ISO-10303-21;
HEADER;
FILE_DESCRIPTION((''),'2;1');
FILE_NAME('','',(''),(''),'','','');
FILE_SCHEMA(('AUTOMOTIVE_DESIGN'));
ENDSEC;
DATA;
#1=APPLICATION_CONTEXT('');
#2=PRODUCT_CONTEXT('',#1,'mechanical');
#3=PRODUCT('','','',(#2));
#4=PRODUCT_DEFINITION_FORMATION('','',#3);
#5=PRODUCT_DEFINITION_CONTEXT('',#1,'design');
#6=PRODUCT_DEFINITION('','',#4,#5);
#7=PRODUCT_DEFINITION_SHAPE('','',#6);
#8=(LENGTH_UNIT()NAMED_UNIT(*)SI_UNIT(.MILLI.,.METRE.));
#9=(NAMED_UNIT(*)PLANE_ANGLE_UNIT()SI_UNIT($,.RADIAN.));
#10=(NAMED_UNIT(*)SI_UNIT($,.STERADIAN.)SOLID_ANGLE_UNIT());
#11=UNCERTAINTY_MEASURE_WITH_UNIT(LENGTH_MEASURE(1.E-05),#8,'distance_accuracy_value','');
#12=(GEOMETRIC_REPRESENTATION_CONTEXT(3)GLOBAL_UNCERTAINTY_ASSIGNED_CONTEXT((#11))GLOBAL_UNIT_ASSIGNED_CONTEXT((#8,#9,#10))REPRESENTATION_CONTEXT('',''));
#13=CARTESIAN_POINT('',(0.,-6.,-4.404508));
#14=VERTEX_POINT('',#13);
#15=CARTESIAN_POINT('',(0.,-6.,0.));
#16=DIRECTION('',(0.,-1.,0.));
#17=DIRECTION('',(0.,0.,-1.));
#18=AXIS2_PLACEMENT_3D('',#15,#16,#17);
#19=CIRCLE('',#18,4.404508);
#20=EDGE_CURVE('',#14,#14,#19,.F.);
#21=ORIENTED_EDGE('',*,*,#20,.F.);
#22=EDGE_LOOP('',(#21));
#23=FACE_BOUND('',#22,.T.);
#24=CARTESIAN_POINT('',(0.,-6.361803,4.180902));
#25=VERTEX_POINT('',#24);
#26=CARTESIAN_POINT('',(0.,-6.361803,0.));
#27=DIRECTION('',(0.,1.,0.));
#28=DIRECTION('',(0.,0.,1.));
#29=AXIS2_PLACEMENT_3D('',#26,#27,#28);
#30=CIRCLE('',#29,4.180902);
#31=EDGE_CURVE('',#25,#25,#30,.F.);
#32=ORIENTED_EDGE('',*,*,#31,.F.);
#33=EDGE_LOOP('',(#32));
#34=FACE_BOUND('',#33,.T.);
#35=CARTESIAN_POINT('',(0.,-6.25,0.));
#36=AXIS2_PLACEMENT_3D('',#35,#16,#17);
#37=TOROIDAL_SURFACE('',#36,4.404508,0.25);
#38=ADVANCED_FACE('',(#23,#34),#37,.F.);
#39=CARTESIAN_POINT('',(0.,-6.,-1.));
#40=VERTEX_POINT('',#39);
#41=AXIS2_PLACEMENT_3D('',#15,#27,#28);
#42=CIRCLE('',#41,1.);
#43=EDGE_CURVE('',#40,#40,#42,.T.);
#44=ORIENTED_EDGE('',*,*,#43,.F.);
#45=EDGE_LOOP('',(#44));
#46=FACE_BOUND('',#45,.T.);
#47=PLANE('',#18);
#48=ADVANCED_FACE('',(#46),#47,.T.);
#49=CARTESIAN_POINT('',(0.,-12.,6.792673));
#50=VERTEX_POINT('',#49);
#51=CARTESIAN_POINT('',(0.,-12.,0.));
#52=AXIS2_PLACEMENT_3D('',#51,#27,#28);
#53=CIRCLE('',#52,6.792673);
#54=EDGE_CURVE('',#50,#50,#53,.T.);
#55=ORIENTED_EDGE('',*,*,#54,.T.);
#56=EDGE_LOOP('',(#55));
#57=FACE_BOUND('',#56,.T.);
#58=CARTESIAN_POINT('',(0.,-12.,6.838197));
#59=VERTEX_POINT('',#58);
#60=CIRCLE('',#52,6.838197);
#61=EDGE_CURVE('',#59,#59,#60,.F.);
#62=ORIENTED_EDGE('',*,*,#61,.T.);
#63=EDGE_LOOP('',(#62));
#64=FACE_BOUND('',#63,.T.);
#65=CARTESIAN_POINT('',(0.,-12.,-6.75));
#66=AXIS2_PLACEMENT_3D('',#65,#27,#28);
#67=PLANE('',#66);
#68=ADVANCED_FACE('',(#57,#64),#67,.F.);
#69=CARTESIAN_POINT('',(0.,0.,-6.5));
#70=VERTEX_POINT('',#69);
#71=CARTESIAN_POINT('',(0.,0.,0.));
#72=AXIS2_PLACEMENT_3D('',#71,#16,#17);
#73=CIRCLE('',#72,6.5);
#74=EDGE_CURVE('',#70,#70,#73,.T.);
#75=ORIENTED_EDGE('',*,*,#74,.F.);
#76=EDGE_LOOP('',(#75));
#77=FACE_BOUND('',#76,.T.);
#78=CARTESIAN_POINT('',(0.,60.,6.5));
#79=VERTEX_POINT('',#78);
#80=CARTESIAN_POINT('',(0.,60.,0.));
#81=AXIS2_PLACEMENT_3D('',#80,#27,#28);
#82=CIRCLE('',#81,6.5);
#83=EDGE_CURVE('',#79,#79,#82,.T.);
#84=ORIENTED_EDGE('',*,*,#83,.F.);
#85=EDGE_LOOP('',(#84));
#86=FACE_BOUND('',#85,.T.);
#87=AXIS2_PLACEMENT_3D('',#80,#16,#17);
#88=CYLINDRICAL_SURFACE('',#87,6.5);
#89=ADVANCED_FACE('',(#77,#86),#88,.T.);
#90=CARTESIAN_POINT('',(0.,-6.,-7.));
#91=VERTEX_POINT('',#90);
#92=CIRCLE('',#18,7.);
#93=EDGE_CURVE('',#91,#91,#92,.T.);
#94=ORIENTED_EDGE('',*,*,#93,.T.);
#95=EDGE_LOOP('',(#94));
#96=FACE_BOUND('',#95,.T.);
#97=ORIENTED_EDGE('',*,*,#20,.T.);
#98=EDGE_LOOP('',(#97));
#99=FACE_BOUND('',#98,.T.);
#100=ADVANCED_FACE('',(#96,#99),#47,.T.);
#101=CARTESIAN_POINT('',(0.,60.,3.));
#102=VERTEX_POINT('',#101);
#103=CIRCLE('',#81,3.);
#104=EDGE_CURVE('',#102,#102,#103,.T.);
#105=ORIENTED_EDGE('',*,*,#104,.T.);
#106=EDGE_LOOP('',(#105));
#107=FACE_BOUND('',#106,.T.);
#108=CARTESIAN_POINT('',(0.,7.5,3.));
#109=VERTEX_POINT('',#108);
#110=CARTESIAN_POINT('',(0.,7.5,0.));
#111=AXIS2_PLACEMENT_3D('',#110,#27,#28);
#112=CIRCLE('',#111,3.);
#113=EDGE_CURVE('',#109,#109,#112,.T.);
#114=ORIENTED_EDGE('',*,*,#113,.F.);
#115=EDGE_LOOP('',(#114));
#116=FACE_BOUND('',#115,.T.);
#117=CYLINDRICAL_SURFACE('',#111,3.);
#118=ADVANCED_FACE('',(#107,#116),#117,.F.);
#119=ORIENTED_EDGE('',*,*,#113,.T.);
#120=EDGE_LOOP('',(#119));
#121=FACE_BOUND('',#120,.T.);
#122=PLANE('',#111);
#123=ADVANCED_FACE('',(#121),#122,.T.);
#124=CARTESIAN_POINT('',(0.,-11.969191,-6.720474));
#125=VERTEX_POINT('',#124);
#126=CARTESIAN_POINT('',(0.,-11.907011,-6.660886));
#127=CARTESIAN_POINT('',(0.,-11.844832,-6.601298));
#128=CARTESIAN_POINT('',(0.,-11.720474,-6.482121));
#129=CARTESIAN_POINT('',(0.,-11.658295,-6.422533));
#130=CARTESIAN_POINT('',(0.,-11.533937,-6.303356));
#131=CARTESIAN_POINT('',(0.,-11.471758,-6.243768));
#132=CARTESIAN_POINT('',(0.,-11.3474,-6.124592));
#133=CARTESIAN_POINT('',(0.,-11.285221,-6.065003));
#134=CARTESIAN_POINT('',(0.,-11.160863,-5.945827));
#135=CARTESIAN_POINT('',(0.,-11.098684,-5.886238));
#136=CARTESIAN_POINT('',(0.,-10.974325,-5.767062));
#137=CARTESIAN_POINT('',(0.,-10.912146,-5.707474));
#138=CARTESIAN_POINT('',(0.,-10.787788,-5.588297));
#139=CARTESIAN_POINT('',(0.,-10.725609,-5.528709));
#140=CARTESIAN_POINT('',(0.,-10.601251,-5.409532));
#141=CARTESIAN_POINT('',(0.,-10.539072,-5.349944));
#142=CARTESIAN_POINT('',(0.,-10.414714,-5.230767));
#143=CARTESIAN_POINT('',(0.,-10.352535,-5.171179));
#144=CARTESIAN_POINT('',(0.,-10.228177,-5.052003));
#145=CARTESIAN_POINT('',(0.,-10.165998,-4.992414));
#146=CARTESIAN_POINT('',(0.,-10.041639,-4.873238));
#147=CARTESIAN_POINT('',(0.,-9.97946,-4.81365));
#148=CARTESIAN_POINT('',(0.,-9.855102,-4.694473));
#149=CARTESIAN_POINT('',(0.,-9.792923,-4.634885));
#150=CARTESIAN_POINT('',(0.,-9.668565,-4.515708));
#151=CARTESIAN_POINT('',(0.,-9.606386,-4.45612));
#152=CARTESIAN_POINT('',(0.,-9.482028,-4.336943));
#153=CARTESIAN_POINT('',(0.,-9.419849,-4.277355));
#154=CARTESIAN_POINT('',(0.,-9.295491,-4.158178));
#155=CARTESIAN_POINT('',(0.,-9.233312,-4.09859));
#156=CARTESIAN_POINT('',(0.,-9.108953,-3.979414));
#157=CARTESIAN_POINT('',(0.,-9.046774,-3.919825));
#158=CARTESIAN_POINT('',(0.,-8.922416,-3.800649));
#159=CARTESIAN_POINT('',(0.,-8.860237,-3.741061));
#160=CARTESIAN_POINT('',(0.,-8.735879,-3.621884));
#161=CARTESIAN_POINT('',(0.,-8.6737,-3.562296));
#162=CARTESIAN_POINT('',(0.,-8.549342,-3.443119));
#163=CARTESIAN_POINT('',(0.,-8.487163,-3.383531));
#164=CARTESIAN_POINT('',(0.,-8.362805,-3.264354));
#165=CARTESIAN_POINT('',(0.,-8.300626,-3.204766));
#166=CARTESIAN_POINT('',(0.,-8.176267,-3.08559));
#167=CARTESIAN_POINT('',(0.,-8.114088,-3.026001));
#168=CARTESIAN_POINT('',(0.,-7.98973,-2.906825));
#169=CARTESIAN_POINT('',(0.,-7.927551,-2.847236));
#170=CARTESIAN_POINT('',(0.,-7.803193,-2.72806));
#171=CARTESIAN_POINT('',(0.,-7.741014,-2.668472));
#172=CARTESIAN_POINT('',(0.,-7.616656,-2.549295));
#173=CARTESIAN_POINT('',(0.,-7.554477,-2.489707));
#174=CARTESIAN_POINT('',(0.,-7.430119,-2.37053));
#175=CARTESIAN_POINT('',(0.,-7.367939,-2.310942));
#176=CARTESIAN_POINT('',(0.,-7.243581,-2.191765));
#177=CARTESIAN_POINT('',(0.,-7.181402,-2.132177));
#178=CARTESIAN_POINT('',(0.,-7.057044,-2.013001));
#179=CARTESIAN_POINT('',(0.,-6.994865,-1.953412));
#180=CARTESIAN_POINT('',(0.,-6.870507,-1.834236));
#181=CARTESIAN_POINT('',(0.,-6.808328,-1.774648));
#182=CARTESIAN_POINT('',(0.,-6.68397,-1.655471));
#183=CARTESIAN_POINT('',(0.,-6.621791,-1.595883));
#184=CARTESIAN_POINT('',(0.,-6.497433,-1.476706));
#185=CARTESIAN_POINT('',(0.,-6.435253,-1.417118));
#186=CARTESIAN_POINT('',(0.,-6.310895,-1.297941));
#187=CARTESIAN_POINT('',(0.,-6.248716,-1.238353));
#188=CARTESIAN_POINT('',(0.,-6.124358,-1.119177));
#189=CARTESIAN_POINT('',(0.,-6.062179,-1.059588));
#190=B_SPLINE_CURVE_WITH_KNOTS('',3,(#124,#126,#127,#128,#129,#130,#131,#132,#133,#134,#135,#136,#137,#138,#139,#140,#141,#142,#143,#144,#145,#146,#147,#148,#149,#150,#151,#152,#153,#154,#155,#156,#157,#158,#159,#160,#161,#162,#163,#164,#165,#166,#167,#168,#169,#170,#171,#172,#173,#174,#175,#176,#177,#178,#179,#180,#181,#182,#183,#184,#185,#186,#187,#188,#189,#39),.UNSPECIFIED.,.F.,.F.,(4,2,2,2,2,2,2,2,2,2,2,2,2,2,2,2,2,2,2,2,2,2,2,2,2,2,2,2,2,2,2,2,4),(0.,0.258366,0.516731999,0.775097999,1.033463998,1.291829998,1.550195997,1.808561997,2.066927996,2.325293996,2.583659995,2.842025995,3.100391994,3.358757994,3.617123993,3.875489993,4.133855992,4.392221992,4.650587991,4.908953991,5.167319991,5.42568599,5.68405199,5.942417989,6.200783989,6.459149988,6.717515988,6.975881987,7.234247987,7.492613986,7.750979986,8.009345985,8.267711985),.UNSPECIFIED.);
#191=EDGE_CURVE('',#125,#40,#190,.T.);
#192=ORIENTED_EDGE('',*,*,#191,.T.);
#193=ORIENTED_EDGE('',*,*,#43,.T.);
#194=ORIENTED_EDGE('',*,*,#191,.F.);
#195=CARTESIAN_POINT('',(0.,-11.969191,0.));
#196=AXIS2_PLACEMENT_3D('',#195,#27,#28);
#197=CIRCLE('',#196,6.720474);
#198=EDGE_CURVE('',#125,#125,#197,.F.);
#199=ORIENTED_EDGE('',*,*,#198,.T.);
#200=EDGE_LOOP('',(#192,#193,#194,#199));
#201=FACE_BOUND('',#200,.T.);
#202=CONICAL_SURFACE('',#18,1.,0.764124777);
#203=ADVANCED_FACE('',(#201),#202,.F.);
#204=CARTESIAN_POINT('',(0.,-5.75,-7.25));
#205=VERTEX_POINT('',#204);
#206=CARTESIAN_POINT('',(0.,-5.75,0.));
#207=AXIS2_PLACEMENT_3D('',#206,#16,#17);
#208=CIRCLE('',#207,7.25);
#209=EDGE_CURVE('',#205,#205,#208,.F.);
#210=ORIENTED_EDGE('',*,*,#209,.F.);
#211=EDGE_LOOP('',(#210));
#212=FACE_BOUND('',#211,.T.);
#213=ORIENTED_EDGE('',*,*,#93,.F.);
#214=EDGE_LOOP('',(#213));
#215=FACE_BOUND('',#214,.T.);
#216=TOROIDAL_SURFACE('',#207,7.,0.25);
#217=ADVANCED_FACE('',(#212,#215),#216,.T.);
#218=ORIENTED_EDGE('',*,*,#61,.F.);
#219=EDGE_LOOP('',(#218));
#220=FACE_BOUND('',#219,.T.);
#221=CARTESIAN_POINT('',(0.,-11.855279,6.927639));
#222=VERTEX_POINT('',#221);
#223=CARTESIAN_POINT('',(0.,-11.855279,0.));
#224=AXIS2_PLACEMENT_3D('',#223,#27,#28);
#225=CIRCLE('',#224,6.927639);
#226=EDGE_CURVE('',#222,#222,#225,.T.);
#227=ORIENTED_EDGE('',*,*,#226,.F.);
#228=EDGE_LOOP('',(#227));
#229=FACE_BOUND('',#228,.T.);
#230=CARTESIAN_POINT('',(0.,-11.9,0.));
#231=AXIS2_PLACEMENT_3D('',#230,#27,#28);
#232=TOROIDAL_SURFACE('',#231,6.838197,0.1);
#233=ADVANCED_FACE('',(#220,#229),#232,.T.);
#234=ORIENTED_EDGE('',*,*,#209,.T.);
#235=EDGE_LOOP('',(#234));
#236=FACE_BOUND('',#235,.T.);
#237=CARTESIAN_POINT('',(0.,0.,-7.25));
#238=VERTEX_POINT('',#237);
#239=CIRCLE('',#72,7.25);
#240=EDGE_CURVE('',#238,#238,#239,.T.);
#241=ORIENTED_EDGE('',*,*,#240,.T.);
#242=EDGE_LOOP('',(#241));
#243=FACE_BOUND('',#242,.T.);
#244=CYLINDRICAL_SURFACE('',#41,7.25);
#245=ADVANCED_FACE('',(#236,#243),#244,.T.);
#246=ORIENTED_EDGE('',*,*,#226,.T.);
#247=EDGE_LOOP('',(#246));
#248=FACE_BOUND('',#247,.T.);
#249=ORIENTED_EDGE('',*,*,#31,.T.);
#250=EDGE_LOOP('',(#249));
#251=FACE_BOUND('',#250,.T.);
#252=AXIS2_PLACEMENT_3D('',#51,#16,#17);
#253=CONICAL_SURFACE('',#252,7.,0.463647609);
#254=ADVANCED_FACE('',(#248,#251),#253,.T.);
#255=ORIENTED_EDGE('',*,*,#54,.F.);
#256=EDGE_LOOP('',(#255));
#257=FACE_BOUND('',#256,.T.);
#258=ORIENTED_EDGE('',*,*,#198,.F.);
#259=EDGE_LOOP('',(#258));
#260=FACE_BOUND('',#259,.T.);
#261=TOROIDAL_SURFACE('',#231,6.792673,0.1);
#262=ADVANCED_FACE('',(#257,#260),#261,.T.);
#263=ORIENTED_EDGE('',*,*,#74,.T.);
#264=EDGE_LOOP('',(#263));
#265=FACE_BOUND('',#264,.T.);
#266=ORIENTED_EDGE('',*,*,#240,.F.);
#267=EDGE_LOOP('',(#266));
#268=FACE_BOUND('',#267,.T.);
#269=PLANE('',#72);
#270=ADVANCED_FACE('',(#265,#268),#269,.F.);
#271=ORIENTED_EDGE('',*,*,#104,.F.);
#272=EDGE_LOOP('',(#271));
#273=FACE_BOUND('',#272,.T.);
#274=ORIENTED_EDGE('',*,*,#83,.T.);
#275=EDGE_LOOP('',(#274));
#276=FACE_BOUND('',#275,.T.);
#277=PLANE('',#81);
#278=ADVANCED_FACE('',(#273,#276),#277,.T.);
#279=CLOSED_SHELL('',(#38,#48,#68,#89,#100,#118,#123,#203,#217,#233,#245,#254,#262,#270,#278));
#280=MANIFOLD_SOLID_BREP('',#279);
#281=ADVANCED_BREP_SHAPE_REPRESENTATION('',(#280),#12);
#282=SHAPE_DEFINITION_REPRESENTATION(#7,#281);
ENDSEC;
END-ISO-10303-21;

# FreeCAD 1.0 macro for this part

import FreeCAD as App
import Part
import Sketcher


def edges_at(feature, points):
    """Names of the edges that pass closest to the given points."""
    edges = feature.Shape.Edges
    near = lambda p: min(range(len(edges)), key=lambda i: edges[i].distToShape(Part.Vertex(*p))[0])
    return sorted({f"Edge{near(p) + 1}" for p in points})

doc = App.newDocument("Part")
params = doc.addObject("Spreadsheet::Sheet", "Params")
for row, (alias, value) in enumerate([
    ("sketch1_diameter", "13 mm"),
    ("pad1_length", "60 mm"),
    ("sketch2_diameter", "6 mm"),
    ("pocket1_length", "52.5 mm"),
    ("sketch3_diameter", "14.5 mm"),
    ("pad2_length", "6 mm"),
    ("sketch4_height", "3 mm"),
    ("sketch4_height2", "0.25 mm"),
    ("revolution_angle", "360 deg"),
    ("fillet_radius", "0.1 mm"),
    ("fillet2_radius", "0.25 mm"),
    ("fillet3_radius", "0.25 mm"),
], start=1):
    params.set(f"A{row}", alias)
    params.set(f"B{row}", "=" + value)
    params.setAlias(f"B{row}", alias)

body = doc.addObject("PartDesign::Body", "Body")

# Sketch on XZ plane
sketch1 = body.newObject("Sketcher::SketchObject", "Sketch")
sketch1.AttachmentSupport = (doc.getObject("XZ_Plane"), [""])
sketch1.MapMode = "FlatFace"
sketch1.addGeometry(Part.Circle(App.Vector(0, 0, 0), App.Vector(0, 0, 1), 6), False)
sketch1.addConstraint(Sketcher.Constraint("Coincident", 0, 3, -1, 1))
sketch1.addConstraint(Sketcher.Constraint("Diameter", 0, 13.0))
sketch1.setExpression("Constraints[1]", "Params.sketch1_diameter")
pad1 = body.newObject("PartDesign::Pad", "Pad")
pad1.Profile = sketch1
pad1.setExpression("Length", "Params.pad1_length")
pad1.Reversed = True

# Sketch on XZ plane
sketch2 = body.newObject("Sketcher::SketchObject", "Sketch001")
sketch2.AttachmentSupport = (doc.getObject("XZ_Plane"), [""])
sketch2.MapMode = "FlatFace"
sketch2.AttachmentOffset = App.Placement(App.Vector(0, 0, -60), App.Rotation())
sketch2.addGeometry(Part.Circle(App.Vector(0, 0, 0), App.Vector(0, 0, 1), 3), False)
sketch2.addConstraint(Sketcher.Constraint("Coincident", 0, 3, -1, 1))
sketch2.addConstraint(Sketcher.Constraint("Diameter", 0, 6.0))
sketch2.setExpression("Constraints[1]", "Params.sketch2_diameter")
pocket1 = body.newObject("PartDesign::Pocket", "Pocket")
pocket1.Profile = sketch2
pocket1.setExpression("Length", "Params.pocket1_length")
pocket1.Reversed = True

# Sketch on XZ plane
sketch3 = body.newObject("Sketcher::SketchObject", "Sketch002")
sketch3.AttachmentSupport = (doc.getObject("XZ_Plane"), [""])
sketch3.MapMode = "FlatFace"
sketch3.addGeometry(Part.Circle(App.Vector(0, 0, 0), App.Vector(0, 0, 1), 7), False)
sketch3.addConstraint(Sketcher.Constraint("Coincident", 0, 3, -1, 1))
sketch3.addConstraint(Sketcher.Constraint("Diameter", 0, 14.5))
sketch3.setExpression("Constraints[1]", "Params.sketch3_diameter")
pad2 = body.newObject("PartDesign::Pad", "Pad001")
pad2.Profile = sketch3
pad2.setExpression("Length", "Params.pad2_length")

# Sketch on YZ plane
sketch4 = body.newObject("Sketcher::SketchObject", "Sketch003")
sketch4.AttachmentSupport = (doc.getObject("YZ_Plane"), [""])
sketch4.MapMode = "FlatFace"
sketch4.addGeometry(Part.LineSegment(App.Vector(-6, -1, 0), App.Vector(-12, -6.75, 0)), False)
sketch4.addGeometry(Part.LineSegment(App.Vector(-12, -6.75, 0), App.Vector(-12, -7, 0)), False)
sketch4.addGeometry(Part.LineSegment(App.Vector(-12, -7, 0), App.Vector(-6, -4, 0)), False)
sketch4.addGeometry(Part.LineSegment(App.Vector(-6, -4, 0), App.Vector(-6, -1, 0)), False)
sketch4.addConstraint(Sketcher.Constraint("Coincident", 0, 2, 1, 1))
sketch4.addConstraint(Sketcher.Constraint("Coincident", 1, 2, 2, 1))
sketch4.addConstraint(Sketcher.Constraint("Coincident", 2, 2, 3, 1))
sketch4.addConstraint(Sketcher.Constraint("Coincident", 3, 2, 0, 1))
sketch4.addConstraint(Sketcher.Constraint("Vertical", 1))
sketch4.addConstraint(Sketcher.Constraint("Vertical", 3))
sketch4.addConstraint(Sketcher.Constraint("DistanceY", 3, 1, 3, 2, 3.0))
sketch4.addConstraint(Sketcher.Constraint("DistanceX", 0, 2, -1, 1, 12.0))
sketch4.addConstraint(Sketcher.Constraint("DistanceY", 1, 2, -1, 1, 7.0))
sketch4.addConstraint(Sketcher.Constraint("DistanceX", 2, 2, -1, 1, 6.0))
sketch4.addConstraint(Sketcher.Constraint("DistanceY", 2, 2, -1, 1, 4.0))
sketch4.addConstraint(Sketcher.Constraint("DistanceY", 1, 2, 1, 1, 0.25))
sketch4.setExpression("Constraints[6]", "Params.sketch4_height")
sketch4.setExpression("Constraints[11]", "Params.sketch4_height2")
revolution = body.newObject("PartDesign::Revolution", "Revolution")
revolution.Profile = sketch4
revolution.ReferenceAxis = (sketch4, ["H_Axis"])
revolution.setExpression("Angle", "Params.revolution_angle")
doc.recompute()

fillet = body.newObject("PartDesign::Fillet", "Fillet")
fillet.Base = (revolution, edges_at(revolution, [(0, -12, 7), (0, -12, 6.75)]))
fillet.setExpression("Radius", "Params.fillet_radius")
doc.recompute()

fillet2 = body.newObject("PartDesign::Fillet", "Fillet001")
fillet2.Base = (fillet, edges_at(fillet, [(0, -6, 7.25)]))
fillet2.setExpression("Radius", "Params.fillet2_radius")
doc.recompute()

fillet3 = body.newObject("PartDesign::Fillet", "Fillet002")
fillet3.Base = (fillet2, edges_at(fillet2, [(0, -6, 4)]))
fillet3.setExpression("Radius", "Params.fillet3_radius")

doc.recompute()
